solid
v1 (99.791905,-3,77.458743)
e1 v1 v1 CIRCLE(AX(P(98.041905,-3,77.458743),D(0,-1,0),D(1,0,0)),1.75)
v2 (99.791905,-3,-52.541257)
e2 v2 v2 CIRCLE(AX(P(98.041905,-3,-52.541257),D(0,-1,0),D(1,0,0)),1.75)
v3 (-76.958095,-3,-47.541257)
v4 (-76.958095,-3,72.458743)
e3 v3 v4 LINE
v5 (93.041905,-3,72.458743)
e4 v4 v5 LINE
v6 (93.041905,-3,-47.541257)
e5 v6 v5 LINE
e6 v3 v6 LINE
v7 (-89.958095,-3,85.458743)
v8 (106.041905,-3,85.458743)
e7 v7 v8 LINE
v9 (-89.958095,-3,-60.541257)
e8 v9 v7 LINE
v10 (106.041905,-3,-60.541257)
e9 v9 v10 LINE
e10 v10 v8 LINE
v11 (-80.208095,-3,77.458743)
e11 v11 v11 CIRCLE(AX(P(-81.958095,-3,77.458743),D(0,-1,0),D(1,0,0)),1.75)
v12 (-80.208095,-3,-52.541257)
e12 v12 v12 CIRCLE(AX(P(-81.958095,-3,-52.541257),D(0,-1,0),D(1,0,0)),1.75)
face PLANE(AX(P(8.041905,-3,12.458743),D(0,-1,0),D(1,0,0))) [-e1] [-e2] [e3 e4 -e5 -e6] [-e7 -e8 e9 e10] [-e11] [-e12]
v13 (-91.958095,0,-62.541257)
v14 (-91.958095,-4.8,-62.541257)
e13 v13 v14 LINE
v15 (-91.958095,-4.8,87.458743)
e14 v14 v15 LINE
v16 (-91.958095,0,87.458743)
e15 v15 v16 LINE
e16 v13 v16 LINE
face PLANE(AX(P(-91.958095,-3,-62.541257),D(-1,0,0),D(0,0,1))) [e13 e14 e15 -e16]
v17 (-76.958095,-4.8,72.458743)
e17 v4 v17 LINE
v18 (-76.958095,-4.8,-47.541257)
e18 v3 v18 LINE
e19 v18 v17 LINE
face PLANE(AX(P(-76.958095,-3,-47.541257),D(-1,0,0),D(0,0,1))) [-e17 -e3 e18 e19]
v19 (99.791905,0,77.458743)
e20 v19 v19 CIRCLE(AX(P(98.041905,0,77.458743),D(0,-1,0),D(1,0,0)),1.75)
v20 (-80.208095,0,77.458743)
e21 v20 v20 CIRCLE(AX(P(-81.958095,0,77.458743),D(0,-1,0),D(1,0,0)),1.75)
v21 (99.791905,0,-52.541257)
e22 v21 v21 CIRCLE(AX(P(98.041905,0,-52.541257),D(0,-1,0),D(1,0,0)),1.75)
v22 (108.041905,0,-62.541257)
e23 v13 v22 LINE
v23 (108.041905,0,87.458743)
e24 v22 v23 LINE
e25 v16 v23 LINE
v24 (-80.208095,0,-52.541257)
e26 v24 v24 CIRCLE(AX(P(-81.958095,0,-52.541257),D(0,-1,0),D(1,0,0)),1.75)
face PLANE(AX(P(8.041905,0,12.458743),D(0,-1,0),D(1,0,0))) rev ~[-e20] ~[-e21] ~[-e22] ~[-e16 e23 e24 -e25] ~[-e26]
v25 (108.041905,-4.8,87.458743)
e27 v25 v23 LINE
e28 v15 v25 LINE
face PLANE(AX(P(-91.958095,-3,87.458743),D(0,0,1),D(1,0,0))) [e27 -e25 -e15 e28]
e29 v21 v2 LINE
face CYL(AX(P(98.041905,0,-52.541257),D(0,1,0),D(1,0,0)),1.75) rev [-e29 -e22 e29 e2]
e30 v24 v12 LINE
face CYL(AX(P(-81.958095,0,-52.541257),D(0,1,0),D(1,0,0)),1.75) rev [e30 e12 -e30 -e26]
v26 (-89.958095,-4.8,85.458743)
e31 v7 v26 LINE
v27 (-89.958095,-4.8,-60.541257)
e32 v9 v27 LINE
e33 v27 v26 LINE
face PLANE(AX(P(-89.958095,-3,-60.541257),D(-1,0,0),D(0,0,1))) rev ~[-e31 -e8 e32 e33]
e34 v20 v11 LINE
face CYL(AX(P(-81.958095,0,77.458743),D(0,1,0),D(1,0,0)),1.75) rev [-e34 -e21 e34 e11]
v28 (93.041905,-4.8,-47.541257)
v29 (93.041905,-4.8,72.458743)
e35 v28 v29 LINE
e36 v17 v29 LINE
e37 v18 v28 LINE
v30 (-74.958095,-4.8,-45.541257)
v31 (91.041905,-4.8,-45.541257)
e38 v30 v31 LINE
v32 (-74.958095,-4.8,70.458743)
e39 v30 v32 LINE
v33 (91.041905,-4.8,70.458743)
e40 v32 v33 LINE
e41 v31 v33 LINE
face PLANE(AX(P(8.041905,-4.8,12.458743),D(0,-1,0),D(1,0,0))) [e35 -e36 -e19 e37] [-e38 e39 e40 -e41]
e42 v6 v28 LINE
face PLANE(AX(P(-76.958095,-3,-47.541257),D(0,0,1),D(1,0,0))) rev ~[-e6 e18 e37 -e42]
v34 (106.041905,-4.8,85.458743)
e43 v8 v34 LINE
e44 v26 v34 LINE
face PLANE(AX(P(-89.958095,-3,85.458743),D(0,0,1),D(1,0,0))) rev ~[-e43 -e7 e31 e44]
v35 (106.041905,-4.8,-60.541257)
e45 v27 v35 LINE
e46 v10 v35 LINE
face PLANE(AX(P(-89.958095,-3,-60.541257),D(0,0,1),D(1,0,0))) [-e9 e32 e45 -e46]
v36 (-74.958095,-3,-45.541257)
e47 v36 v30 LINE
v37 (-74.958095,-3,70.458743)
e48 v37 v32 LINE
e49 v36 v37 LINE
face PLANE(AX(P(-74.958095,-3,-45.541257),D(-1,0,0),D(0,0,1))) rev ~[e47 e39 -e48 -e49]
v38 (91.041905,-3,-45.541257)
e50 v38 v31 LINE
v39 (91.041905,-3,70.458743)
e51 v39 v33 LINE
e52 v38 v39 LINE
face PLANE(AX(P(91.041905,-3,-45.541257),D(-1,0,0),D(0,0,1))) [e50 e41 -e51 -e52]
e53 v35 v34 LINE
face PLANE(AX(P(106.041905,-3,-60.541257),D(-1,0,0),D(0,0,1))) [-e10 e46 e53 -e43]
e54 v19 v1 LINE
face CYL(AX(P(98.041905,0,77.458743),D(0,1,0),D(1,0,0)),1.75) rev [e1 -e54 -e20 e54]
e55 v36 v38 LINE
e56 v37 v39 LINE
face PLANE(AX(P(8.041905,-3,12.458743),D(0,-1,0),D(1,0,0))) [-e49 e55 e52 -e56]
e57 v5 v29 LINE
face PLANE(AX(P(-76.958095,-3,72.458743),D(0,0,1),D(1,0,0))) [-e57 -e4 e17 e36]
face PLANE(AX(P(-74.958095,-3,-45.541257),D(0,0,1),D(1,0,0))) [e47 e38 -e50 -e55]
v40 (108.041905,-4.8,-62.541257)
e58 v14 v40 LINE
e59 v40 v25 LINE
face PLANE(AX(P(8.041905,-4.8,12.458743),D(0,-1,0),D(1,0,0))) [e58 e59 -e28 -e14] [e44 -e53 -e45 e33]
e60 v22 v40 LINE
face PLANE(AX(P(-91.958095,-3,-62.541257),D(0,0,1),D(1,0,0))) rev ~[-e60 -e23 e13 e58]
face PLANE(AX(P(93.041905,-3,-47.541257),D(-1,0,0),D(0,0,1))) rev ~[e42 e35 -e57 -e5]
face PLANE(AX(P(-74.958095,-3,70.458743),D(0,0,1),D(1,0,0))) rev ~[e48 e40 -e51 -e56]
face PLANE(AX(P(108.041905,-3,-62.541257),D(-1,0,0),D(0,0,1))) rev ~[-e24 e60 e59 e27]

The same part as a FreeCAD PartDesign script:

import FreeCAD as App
import Part
import Sketcher
from FreeCAD import Vector
Q = App.Units.Quantity


def add_polygon(sketch, points):
    """Adds a closed chain of lines whose ends are joined by coincident constraints."""
    first, n = sketch.GeometryCount, len(points)
    for a, b in zip(points, points[1:] + points[:1]):
        sketch.addGeometry(Part.LineSegment(App.Vector(*a, 0), App.Vector(*b, 0)), False)
    for i in range(n):
        sketch.addConstraint(Sketcher.Constraint("Coincident", first + i, 2, first + (i + 1) % n, 1))

doc = App.newDocument("Part")
body = doc.addObject("PartDesign::Body", "Body")

sketch1 = body.newObject("Sketcher::SketchObject", "Sketch")
sketch1.AttachmentSupport = (doc.getObject("XZ_Plane"), [""])
sketch1.MapMode = "FlatFace"
add_polygon(sketch1, [(-91.958095, 87.458743), (-91.958095, -62.541257), (108.041905, -62.541257), (108.041905, 87.458743)])
sketch1.addGeometry(Part.Circle(Vector(-81.958095, -52.541257, 0), Vector(0, 0, 1), 1.75), False)
sketch1.addGeometry(Part.Circle(Vector(98.041905, -52.541257, 0), Vector(0, 0, 1), 1.75), False)
sketch1.addGeometry(Part.Circle(Vector(-81.958095, 77.458743, 0), Vector(0, 0, 1), 1.75), False)
sketch1.addGeometry(Part.Circle(Vector(98.041905, 77.458743, 0), Vector(0, 0, 1), 1.75), False)
sketch1.addConstraint([
    Sketcher.Constraint("Vertical", 0),
    Sketcher.Constraint("Horizontal", 1),
    Sketcher.Constraint("Vertical", 2),
    Sketcher.Constraint("Horizontal", 3),
    Sketcher.Constraint("Equal", 4, 5),
    Sketcher.Constraint("Equal", 5, 6),
    Sketcher.Constraint("Equal", 6, 7),
    Sketcher.Constraint("Horizontal", 4, 3, 5, 3),
    Sketcher.Constraint("Horizontal", 6, 3, 7, 3),
    Sketcher.Constraint("Vertical", 4, 3, 6, 3),
    Sketcher.Constraint("Vertical", 5, 3, 7, 3),
    Sketcher.Constraint("Diameter", 4, Q("3.5 mm")),
    Sketcher.Constraint("DistanceX", 1, 1, 1, 2, Q("200 mm")),
    Sketcher.Constraint("DistanceY", 0, 2, 0, 1, Q("150 mm")),
    Sketcher.Constraint("DistanceX", 4, 3, 5, 3, Q("180 mm")),
    Sketcher.Constraint("DistanceY", 4, 3, 6, 3, Q("130 mm")),
    Sketcher.Constraint("DistanceX", 0, 2, 4, 3, Q("10 mm")),
    Sketcher.Constraint("DistanceY", 0, 2, 4, 3, Q("10 mm")),
    Sketcher.Constraint("DistanceX", 4, 3, -1, 1, Q("81.958095 mm")),
    Sketcher.Constraint("DistanceY", 4, 3, -1, 1, Q("52.541257 mm")),
])
pad1 = body.newObject("PartDesign::Pad", "Pad")
pad1.Profile = sketch1
pad1.Length = 3

sketch2 = body.newObject("Sketcher::SketchObject", "Sketch001")
sketch2.AttachmentSupport = (doc.getObject("XZ_Plane"), [""])
sketch2.MapMode = "FlatFace"
sketch2.AttachmentOffset = App.Placement(Vector(0, 0, 3), App.Rotation())
add_polygon(sketch2, [(-91.958095, 87.458743), (-91.958095, -62.541257), (108.041905, -62.541257), (108.041905, 87.458743)])
add_polygon(sketch2, [(106.041905, -60.541257), (-89.958095, -60.541257), (-89.958095, 85.458743), (106.041905, 85.458743)])
add_polygon(sketch2, [(-76.958095, 72.458743), (-76.958095, -47.541257), (93.041905, -47.541257), (93.041905, 72.458743)])
add_polygon(sketch2, [(91.041905, -45.541257), (-74.958095, -45.541257), (-74.958095, 70.458743), (91.041905, 70.458743)])
sketch2.addConstraint([
    Sketcher.Constraint("Vertical", 0),
    Sketcher.Constraint("Horizontal", 1),
    Sketcher.Constraint("Vertical", 2),
    Sketcher.Constraint("Horizontal", 3),
    Sketcher.Constraint("Horizontal", 4),
    Sketcher.Constraint("Vertical", 5),
    Sketcher.Constraint("Horizontal", 6),
    Sketcher.Constraint("Vertical", 7),
    Sketcher.Constraint("Vertical", 8),
    Sketcher.Constraint("Horizontal", 9),
    Sketcher.Constraint("Vertical", 10),
    Sketcher.Constraint("Horizontal", 11),
    Sketcher.Constraint("Horizontal", 12),
    Sketcher.Constraint("Vertical", 13),
    Sketcher.Constraint("Horizontal", 14),
    Sketcher.Constraint("Vertical", 15),
    Sketcher.Constraint("DistanceX", 1, 1, 1, 2, Q("200 mm")),
    Sketcher.Constraint("DistanceX", 4, 2, 4, 1, Q("196 mm")),
    Sketcher.Constraint("DistanceX", 9, 1, 9, 2, Q("170 mm")),
    Sketcher.Constraint("DistanceX", 12, 2, 12, 1, Q("166 mm")),
    Sketcher.Constraint("DistanceY", 0, 2, 0, 1, Q("150 mm")),
    Sketcher.Constraint("DistanceY", 5, 1, 5, 2, Q("146 mm")),
    Sketcher.Constraint("DistanceY", 8, 2, 8, 1, Q("120 mm")),
    Sketcher.Constraint("DistanceY", 13, 1, 13, 2, Q("116 mm")),
    Sketcher.Constraint("DistanceX", 0, 2, 4, 2, Q("2 mm")),
    Sketcher.Constraint("DistanceY", 0, 2, 4, 2, Q("2 mm")),
    Sketcher.Constraint("DistanceX", 4, 2, 8, 2, Q("13 mm")),
    Sketcher.Constraint("DistanceY", 4, 2, 8, 2, Q("13 mm")),
    Sketcher.Constraint("DistanceX", 8, 2, 12, 2, Q("2 mm")),
    Sketcher.Constraint("DistanceY", 8, 2, 12, 2, Q("2 mm")),
    Sketcher.Constraint("DistanceX", 0, 2, -1, 1, Q("91.958095 mm")),
    Sketcher.Constraint("DistanceY", 0, 2, -1, 1, Q("62.541257 mm")),
])
pad2 = body.newObject("PartDesign::Pad", "Pad001")
pad2.Profile = sketch2
pad2.Length = 1.8

doc.recompute()
